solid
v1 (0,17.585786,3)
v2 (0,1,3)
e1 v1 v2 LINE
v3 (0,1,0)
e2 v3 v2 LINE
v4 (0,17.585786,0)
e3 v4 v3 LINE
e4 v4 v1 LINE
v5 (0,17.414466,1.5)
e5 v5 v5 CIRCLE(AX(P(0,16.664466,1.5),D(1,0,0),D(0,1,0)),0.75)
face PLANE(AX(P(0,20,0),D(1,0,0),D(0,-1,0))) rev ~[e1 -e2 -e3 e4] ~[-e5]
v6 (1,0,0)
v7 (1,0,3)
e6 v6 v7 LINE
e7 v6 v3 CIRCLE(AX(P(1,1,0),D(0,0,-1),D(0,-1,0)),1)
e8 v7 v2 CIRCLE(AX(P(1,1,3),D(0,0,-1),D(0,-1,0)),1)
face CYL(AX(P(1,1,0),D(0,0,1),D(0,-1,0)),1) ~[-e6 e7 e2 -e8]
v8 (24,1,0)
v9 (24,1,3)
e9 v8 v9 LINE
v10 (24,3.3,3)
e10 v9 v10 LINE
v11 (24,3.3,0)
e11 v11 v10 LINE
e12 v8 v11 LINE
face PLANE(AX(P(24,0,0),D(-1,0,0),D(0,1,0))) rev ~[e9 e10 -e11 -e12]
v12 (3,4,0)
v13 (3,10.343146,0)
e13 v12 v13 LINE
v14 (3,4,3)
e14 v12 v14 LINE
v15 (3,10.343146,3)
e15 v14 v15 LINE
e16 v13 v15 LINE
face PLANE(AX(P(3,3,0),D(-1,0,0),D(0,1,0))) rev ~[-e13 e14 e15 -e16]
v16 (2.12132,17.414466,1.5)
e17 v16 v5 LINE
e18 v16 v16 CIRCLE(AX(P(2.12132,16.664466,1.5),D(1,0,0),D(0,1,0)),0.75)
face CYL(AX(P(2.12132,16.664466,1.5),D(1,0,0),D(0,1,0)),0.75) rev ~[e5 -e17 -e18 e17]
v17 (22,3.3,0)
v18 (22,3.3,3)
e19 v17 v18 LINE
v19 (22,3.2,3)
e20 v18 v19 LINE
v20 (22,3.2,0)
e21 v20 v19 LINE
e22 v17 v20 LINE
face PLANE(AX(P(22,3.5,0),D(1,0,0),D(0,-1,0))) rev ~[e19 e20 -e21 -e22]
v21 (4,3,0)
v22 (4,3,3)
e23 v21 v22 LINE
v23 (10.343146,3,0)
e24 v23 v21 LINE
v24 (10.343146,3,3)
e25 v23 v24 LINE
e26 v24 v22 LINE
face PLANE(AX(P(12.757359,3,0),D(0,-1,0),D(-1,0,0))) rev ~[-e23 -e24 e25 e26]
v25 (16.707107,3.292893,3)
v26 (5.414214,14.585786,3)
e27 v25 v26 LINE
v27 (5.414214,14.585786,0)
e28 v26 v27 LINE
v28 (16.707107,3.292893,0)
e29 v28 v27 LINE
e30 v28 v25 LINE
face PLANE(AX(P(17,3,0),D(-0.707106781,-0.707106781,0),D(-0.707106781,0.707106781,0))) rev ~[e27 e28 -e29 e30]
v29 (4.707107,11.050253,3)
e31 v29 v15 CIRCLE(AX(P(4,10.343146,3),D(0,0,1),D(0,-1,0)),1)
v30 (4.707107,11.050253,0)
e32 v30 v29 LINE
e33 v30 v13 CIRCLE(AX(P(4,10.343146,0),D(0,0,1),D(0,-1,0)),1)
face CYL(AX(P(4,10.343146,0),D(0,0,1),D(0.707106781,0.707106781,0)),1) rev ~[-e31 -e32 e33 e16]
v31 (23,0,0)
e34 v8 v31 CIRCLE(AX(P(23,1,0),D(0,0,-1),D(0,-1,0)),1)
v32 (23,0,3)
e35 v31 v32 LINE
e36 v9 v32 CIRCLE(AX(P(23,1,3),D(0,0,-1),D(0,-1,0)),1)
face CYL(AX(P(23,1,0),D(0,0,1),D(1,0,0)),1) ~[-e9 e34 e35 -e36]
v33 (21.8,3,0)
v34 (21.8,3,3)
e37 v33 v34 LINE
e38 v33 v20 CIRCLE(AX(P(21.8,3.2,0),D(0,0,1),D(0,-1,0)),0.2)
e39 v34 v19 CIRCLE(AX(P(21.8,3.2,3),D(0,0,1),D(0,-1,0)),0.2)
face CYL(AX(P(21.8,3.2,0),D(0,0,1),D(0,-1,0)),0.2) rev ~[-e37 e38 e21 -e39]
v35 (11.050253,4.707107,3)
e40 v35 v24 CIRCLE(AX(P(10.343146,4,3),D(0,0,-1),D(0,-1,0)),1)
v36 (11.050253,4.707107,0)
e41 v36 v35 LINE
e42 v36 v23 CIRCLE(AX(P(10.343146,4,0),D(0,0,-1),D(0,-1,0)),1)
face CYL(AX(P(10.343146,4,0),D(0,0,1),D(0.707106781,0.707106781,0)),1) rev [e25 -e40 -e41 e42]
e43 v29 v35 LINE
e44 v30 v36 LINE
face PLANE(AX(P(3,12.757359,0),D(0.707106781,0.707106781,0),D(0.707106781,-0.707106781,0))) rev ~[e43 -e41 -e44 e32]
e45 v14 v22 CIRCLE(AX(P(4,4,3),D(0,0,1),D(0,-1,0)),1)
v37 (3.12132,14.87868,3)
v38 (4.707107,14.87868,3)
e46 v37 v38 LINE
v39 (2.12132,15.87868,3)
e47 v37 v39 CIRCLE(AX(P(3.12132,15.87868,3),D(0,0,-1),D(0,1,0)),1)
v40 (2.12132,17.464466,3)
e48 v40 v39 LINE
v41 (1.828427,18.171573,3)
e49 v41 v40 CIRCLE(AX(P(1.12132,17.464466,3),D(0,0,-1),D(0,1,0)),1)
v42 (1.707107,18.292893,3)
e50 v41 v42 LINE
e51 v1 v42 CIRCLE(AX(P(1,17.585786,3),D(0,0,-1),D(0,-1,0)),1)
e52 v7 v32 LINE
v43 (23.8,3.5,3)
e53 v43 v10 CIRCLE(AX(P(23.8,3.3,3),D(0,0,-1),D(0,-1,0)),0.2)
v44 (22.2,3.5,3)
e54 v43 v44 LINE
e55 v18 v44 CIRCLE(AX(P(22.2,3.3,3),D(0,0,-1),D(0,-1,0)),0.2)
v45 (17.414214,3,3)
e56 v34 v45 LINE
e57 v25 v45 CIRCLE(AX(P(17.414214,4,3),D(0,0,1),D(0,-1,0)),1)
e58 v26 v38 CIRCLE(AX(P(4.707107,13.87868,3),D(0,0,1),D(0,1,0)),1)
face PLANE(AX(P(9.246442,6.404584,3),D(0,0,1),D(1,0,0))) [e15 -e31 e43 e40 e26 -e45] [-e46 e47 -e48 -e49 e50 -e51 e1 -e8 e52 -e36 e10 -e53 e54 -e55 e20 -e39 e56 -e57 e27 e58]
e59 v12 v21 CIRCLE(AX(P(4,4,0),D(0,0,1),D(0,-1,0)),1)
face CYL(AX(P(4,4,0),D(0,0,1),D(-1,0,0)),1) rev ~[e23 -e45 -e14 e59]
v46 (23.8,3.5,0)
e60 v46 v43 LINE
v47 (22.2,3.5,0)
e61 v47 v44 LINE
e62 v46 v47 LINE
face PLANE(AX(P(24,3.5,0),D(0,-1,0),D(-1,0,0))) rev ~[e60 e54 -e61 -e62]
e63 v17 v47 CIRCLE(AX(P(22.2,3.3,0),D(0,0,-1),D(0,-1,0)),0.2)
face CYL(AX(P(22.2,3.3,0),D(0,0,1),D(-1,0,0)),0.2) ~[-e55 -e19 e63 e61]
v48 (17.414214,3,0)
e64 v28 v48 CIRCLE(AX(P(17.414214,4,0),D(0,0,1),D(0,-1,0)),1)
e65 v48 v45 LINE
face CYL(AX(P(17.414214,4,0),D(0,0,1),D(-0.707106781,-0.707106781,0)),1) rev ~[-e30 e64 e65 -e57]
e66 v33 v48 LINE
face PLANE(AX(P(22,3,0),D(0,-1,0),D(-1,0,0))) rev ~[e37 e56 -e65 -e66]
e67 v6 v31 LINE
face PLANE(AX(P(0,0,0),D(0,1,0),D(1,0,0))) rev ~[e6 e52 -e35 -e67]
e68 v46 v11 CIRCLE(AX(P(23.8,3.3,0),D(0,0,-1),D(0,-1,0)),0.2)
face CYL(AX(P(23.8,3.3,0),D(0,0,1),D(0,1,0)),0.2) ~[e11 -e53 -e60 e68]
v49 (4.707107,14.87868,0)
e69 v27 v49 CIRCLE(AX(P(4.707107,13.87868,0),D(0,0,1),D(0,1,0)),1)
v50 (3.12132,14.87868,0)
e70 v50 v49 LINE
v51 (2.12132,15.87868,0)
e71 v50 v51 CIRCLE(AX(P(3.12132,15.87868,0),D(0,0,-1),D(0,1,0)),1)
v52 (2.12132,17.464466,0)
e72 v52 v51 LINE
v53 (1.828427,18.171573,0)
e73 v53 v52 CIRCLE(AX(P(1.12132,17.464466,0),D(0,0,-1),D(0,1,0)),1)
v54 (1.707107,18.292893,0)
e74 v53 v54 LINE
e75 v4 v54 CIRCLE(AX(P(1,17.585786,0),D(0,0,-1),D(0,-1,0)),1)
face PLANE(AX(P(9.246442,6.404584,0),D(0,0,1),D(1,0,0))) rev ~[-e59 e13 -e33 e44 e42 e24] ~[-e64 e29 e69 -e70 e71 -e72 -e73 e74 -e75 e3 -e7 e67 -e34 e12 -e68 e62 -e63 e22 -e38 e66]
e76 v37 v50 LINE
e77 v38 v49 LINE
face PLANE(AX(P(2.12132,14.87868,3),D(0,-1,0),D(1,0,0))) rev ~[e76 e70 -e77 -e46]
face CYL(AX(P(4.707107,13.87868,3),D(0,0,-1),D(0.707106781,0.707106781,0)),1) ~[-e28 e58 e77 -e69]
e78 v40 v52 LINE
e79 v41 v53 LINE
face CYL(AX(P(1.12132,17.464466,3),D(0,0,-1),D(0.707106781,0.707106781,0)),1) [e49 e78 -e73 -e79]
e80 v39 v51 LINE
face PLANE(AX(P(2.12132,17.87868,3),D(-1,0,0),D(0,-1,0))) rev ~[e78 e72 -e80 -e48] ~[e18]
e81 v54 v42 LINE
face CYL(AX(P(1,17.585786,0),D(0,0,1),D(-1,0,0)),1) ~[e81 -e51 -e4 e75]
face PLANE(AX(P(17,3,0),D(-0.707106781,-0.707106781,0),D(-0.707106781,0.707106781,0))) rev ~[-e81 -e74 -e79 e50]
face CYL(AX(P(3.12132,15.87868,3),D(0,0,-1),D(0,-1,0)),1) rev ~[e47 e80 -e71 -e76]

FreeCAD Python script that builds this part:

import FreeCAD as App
import Part
import Sketcher
from FreeCAD import Vector
Q = App.Units.Quantity


def edges_at(feature, points):
    """Names of the edges that pass closest to the given points."""
    edges = feature.Shape.Edges
    near = lambda p: min(range(len(edges)), key=lambda i: edges[i].distToShape(Part.Vertex(*p))[0])
    return sorted({f"Edge{near(p) + 1}" for p in points})


def add_polygon(sketch, points):
    """Adds a closed chain of lines whose ends are joined by coincident constraints."""
    first, n = sketch.GeometryCount, len(points)
    for a, b in zip(points, points[1:] + points[:1]):
        sketch.addGeometry(Part.LineSegment(App.Vector(*a, 0), App.Vector(*b, 0)), False)
    for i in range(n):
        sketch.addConstraint(Sketcher.Constraint("Coincident", first + i, 2, first + (i + 1) % n, 1))

doc = App.newDocument("Part")
body = doc.addObject("PartDesign::Body", "Body")

# Sketch on XY plane
sketch1 = body.newObject("Sketcher::SketchObject", "Sketch")
sketch1.AttachmentSupport = (doc.getObject("XY_Plane"), [""])
sketch1.MapMode = "FlatFace"
add_polygon(sketch1, [(17, 3), (0, 20), (0, 0), (24, 0), (24, 3.5), (22, 3.5), (22, 3)])  # lines 0-6
add_polygon(sketch1, [(3, 12.757359), (12.757359, 3), (3, 3)])  # lines 7-9
sketch1.addConstraint(Sketcher.Constraint("Vertical", 1))
sketch1.addConstraint(Sketcher.Constraint("Horizontal", 2))
sketch1.addConstraint(Sketcher.Constraint("Vertical", 3))
sketch1.addConstraint(Sketcher.Constraint("Horizontal", 4))
sketch1.addConstraint(Sketcher.Constraint("Vertical", 5))
sketch1.addConstraint(Sketcher.Constraint("Horizontal", 6))
sketch1.addConstraint(Sketcher.Constraint("Horizontal", 8))
sketch1.addConstraint(Sketcher.Constraint("Vertical", 9))
sketch1.addConstraint(Sketcher.Constraint("Coincident", 1, 2, -1, 1))
sketch1.addConstraint(Sketcher.Constraint("Parallel", 0, 7))
sketch1.addConstraint(Sketcher.Constraint("Horizontal", 6, 2, 7, 2))
sketch1.addConstraint(Sketcher.Constraint("Equal", 8, 9))
sketch1.addConstraint(Sketcher.Constraint("DistanceX", 2, 1, 2, 2, Q("24 mm")))
sketch1.addConstraint(Sketcher.Constraint("DistanceX", 4, 2, 4, 1, Q("2 mm")))
sketch1.addConstraint(Sketcher.Constraint("DistanceX", 6, 2, 6, 1, Q("5 mm")))
sketch1.addConstraint(Sketcher.Constraint("DistanceY", 1, 2, 1, 1, Q("20 mm")))
sketch1.addConstraint(Sketcher.Constraint("DistanceY", 3, 1, 3, 2, Q("3.5 mm")))
sketch1.addConstraint(Sketcher.Constraint("DistanceX", -1, 1, 8, 2, Q("3 mm")))
sketch1.addConstraint(Sketcher.Constraint("DistanceX", 8, 2, 8, 1, Q("9.757359 mm")))
pad1 = body.newObject("PartDesign::Pad", "Pad")
pad1.Profile = sketch1
pad1.Length = 3

# Sketch on XY plane
sketch2 = body.newObject("Sketcher::SketchObject", "Sketch001")
sketch2.AttachmentSupport = (doc.getObject("XY_Plane"), [""])
sketch2.MapMode = "FlatFace"
sketch2.AttachmentOffset = App.Placement(Vector(0, 0, 3), App.Rotation())
add_polygon(sketch2, [(5.12132, 17.87868), (2.12132, 17.87868), (2.12132, 14.87868), (5.12132, 14.87868)])  # lines 0-3
sketch2.addConstraint(Sketcher.Constraint("Horizontal", 0))
sketch2.addConstraint(Sketcher.Constraint("Vertical", 1))
sketch2.addConstraint(Sketcher.Constraint("Horizontal", 2))
sketch2.addConstraint(Sketcher.Constraint("Vertical", 3))
sketch2.addConstraint(Sketcher.Constraint("Equal", 2, 1))
sketch2.addConstraint(Sketcher.Constraint("DistanceX", 0, 2, 0, 1, Q("3 mm")))
sketch2.addConstraint(Sketcher.Constraint("DistanceX", -1, 1, 0, 2, Q("2.12132 mm")))
sketch2.addConstraint(Sketcher.Constraint("DistanceY", -1, 1, 0, 2, Q("17.87868 mm")))
pocket1 = body.newObject("PartDesign::Pocket", "Pocket")
pocket1.Profile = sketch2
pocket1.Type = "ThroughAll"
doc.recompute()

fillet = body.newObject("PartDesign::Fillet", "Fillet")
fillet.Base = (pocket1, edges_at(pocket1, [
    (5.121, 14.879, 1.5),
    (2.121, 14.879, 1.5),
    (3, 12.757, 1.5),
    (17, 3, 1.5),
    (3, 3, 1.5),
    (12.757, 3, 1.5),
    (2.121, 17.879, 1.5),
    (24, 0, 1.5),
    (0, 20, 1.5),
    (0, 0, 1.5),
]))
fillet.Radius = 1
doc.recompute()

fillet2 = body.newObject("PartDesign::Fillet", "Fillet001")
fillet2.Base = (fillet, edges_at(fillet, [(22, 3, 1.5), (24, 3.5, 1.5), (22, 3.5, 1.5)]))
fillet2.Radius = 0.2

# Sketch on YZ plane
sketch3 = body.newObject("Sketcher::SketchObject", "Sketch002")
sketch3.AttachmentSupport = (doc.getObject("YZ_Plane"), [""])
sketch3.MapMode = "FlatFace"
sketch3.AttachmentOffset = App.Placement(Vector(0, 0, 2.12132), App.Rotation())
sketch3.addGeometry(Part.Circle(Vector(16.664466, 1.5, 0), Vector(0, 0, 1), 0.75), False)
sketch3.addConstraint(Sketcher.Constraint("Diameter", 0, Q("1.5 mm")))
sketch3.addConstraint(Sketcher.Constraint("DistanceY", -1, 1, 0, 3, Q("1.5 mm")))
sketch3.addConstraint(Sketcher.Constraint("DistanceX", -1, 1, 0, 3, Q("16.664466 mm")))
pocket2 = body.newObject("PartDesign::Pocket", "Pocket001")
pocket2.Profile = sketch3
pocket2.Type = "ThroughAll"

doc.recompute()
